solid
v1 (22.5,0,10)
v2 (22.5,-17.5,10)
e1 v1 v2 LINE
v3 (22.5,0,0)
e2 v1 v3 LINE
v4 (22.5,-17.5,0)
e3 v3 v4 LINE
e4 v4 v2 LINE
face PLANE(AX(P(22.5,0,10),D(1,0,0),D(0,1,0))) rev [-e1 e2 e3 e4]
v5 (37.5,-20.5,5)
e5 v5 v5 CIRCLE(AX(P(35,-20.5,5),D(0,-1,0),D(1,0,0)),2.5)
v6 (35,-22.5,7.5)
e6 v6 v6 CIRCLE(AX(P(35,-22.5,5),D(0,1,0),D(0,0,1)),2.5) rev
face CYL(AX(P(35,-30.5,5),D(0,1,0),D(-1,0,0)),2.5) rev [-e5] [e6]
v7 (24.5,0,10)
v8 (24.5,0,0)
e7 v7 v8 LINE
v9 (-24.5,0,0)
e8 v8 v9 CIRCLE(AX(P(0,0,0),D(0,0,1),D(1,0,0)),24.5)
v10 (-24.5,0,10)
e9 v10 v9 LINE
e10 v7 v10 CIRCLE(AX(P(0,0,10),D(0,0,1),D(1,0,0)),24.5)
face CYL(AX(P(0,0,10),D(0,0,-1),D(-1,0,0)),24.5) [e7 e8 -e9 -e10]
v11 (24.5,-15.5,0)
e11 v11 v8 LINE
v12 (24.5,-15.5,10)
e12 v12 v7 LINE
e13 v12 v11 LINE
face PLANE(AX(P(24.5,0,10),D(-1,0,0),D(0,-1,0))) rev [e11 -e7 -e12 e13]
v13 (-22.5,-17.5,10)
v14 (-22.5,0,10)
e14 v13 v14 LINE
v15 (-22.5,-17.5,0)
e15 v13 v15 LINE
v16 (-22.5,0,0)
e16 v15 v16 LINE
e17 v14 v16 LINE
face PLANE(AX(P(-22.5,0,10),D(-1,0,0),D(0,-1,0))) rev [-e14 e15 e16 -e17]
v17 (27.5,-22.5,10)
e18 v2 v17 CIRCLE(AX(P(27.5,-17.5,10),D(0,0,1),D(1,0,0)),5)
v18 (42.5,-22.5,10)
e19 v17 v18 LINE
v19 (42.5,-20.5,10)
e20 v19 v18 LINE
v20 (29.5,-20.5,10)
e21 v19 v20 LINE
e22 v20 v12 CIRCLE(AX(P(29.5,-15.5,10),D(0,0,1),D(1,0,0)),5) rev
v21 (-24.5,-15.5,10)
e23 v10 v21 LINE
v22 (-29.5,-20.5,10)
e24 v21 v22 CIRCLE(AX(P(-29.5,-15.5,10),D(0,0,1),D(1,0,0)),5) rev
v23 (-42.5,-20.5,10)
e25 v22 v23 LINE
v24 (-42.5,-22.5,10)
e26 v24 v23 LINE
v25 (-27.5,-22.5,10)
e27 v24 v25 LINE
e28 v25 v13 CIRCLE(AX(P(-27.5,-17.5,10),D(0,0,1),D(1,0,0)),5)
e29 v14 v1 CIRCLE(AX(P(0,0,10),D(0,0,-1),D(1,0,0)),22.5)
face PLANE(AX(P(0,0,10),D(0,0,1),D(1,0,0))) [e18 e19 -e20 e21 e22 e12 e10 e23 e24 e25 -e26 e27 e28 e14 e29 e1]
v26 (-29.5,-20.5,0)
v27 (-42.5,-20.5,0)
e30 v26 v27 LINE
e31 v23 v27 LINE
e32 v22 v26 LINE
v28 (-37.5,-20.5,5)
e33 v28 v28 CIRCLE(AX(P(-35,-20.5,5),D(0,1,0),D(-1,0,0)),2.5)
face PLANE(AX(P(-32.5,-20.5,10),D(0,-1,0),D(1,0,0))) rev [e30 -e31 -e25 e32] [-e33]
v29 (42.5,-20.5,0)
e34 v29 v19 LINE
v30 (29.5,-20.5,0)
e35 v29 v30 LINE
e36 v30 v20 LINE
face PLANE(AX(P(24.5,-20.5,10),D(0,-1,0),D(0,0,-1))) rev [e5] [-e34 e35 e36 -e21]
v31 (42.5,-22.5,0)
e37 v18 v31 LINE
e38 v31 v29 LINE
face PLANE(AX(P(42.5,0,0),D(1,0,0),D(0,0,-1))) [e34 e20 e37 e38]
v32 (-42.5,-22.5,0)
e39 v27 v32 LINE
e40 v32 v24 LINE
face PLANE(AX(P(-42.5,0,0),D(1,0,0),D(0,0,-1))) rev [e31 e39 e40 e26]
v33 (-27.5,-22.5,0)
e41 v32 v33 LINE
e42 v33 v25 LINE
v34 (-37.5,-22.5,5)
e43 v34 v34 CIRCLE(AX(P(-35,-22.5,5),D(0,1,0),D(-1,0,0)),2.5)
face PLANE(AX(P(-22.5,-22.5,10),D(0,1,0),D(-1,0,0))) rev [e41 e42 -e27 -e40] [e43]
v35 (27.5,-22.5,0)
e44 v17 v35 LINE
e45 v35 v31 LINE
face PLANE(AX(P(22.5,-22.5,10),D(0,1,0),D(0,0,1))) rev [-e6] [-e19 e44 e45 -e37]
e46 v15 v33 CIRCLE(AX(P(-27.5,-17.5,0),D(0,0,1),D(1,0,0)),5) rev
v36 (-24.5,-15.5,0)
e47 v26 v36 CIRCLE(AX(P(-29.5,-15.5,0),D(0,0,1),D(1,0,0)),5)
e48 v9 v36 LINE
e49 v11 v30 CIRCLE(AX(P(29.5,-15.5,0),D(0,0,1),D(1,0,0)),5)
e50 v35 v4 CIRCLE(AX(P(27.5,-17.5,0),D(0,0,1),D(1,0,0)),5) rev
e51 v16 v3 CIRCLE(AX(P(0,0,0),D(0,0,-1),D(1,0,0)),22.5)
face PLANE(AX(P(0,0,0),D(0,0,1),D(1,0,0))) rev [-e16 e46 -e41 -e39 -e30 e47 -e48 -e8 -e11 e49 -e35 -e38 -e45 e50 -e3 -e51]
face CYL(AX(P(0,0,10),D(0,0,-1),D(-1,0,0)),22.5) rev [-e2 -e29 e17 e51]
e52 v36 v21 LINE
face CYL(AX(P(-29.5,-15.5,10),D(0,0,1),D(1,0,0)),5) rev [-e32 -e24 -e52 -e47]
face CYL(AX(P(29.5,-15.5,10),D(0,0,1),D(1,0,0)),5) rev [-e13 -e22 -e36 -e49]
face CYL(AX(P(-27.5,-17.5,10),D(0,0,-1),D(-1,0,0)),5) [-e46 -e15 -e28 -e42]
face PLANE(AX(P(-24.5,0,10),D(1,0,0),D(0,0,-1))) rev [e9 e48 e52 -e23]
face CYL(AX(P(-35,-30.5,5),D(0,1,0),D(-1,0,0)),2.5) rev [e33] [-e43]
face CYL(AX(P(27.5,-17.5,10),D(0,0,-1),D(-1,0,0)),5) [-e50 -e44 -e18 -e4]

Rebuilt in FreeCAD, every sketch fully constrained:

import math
import FreeCAD as App
import Part
import Sketcher
from FreeCAD import Vector
Q = App.Units.Quantity


def edges_at(feature, points):
    """Names of the edges that pass closest to the given points."""
    edges = feature.Shape.Edges
    near = lambda p: min(range(len(edges)), key=lambda i: edges[i].distToShape(Part.Vertex(*p))[0])
    return sorted({f"Edge{near(p) + 1}" for p in points})

doc = App.newDocument("Part")
params = doc.addObject("Spreadsheet::Sheet", "Params")
for row, (alias, value) in enumerate([
    ("sketch1_radius", "24.5 mm"),
    ("sketch1_radius2", "22.5 mm"),
    ("sketch1_width", "8 mm"),
    ("sketch1_height", "2 mm"),
    ("sketch1_height2", "20.5 mm"),
    ("pad1_length", "10 mm"),
    ("fillet_radius", "5 mm"),
    ("fillet2_radius", "5 mm"),
    ("fillet3_radius", "5 mm"),
    ("sketch2_width", "2 mm"),
    ("sketch2_height", "10 mm"),
    ("pad2_length", "10 mm"),
    ("sketch3_width", "2 mm"),
    ("sketch3_height", "10 mm"),
    ("pad3_length", "10 mm"),
    ("sketch4_diameter", "5 mm"),
    ("pocket1_length", "10 mm"),
], start=1):
    params.set(f"A{row}", alias)
    params.set(f"B{row}", "=" + value)
    params.setAlias(f"B{row}", alias)

body = doc.addObject("PartDesign::Body", "Body")

# Sketch on XY plane
sketch1 = doc.addObject("Sketcher::SketchObject", "Sketch")
body.addObject(sketch1)
sketch1.AttachmentSupport = (doc.XY_Plane, [""])
sketch1.MapMode = "FlatFace"
sketch1.addGeometry([
    Part.LineSegment(Vector(32.5, -20.5, 0), Vector(24.5, -20.5, 0)),  # 0
    Part.LineSegment(Vector(24.5, -20.5, 0), Vector(24.5, 0, 0)),  # 1
    Part.ArcOfCircle(Part.Circle(Vector(0, 0, 0), Vector(0, 0, 1), 24.5), math.radians(0), math.radians(180)),  # 2
    Part.LineSegment(Vector(-24.5, 0, 0), Vector(-24.5, -20.5, 0)),  # 3
    Part.LineSegment(Vector(-24.5, -20.5, 0), Vector(-32.5, -20.5, 0)),  # 4
    Part.LineSegment(Vector(-32.5, -20.5, 0), Vector(-32.5, -22.5, 0)),  # 5
    Part.LineSegment(Vector(-32.5, -22.5, 0), Vector(-22.5, -22.5, 0)),  # 6
    Part.LineSegment(Vector(-22.5, -22.5, 0), Vector(-22.5, 0, 0)),  # 7
    Part.ArcOfCircle(Part.Circle(Vector(0, 0, 0), Vector(0, 0, 1), 22.5), math.radians(0), math.radians(180)),  # 8
    Part.LineSegment(Vector(22.5, 0, 0), Vector(22.5, -22.5, 0)),  # 9
    Part.LineSegment(Vector(22.5, -22.5, 0), Vector(32.5, -22.5, 0)),  # 10
    Part.LineSegment(Vector(32.5, -22.5, 0), Vector(32.5, -20.5, 0)),  # 11
], False)
sketch1.addConstraint([
    Sketcher.Constraint("Coincident", 0, 2, 1, 1),
    Sketcher.Constraint("Tangent", 1, 2, 2, 1),
    Sketcher.Constraint("Tangent", 2, 2, 3, 1),
    Sketcher.Constraint("Coincident", 3, 2, 4, 1),
    Sketcher.Constraint("Coincident", 4, 2, 5, 1),
    Sketcher.Constraint("Coincident", 5, 2, 6, 1),
    Sketcher.Constraint("Coincident", 6, 2, 7, 1),
    Sketcher.Constraint("Tangent", 7, 2, 8, 2),
    Sketcher.Constraint("Tangent", 8, 1, 9, 1),
    Sketcher.Constraint("Coincident", 9, 2, 10, 1),
    Sketcher.Constraint("Coincident", 10, 2, 11, 1),
    Sketcher.Constraint("Coincident", 11, 2, 0, 1),
    Sketcher.Constraint("Horizontal", 0),
    Sketcher.Constraint("Vertical", 1),
    Sketcher.Constraint("Vertical", 3),
    Sketcher.Constraint("Horizontal", 4),
    Sketcher.Constraint("Vertical", 5),
    Sketcher.Constraint("Horizontal", 6),
    Sketcher.Constraint("Vertical", 7),
    Sketcher.Constraint("Vertical", 9),
    Sketcher.Constraint("Horizontal", 10),
    Sketcher.Constraint("Vertical", 11),
    Sketcher.Constraint("Coincident", 2, 3, -1, 1),
    Sketcher.Constraint("Coincident", 8, 3, -1, 1),
    Sketcher.Constraint("Symmetric", 5, 2, 10, 2, -2),
    Sketcher.Constraint("Horizontal", 0, 2, 3, 2),
    Sketcher.Constraint("Radius", 2, Q("24.5 mm")),
    Sketcher.Constraint("Radius", 8, Q("22.5 mm")),
    Sketcher.Constraint("DistanceX", 0, 2, 0, 1, Q("8 mm")),
    Sketcher.Constraint("DistanceY", 5, 2, 5, 1, Q("2 mm")),
    Sketcher.Constraint("DistanceY", 1, 1, 1, 2, Q("20.5 mm")),
])
sketch1.setExpression("Constraints[26]", "Params.sketch1_radius")
sketch1.setExpression("Constraints[27]", "Params.sketch1_radius2")
sketch1.setExpression("Constraints[28]", "Params.sketch1_width")
sketch1.setExpression("Constraints[29]", "Params.sketch1_height")
sketch1.setExpression("Constraints[30]", "Params.sketch1_height2")
pad1 = doc.addObject("PartDesign::Pad", "Pad")
body.addObject(pad1)
pad1.Profile = sketch1
pad1.setExpression("Length", "Params.pad1_length")
doc.recompute()

fillet = doc.addObject("PartDesign::Fillet", "Fillet")
body.addObject(fillet)
fillet.Base = (pad1, edges_at(pad1, [(-22.5, -22.5, 5)]))
fillet.setExpression("Radius", "Params.fillet_radius")
doc.recompute()

fillet2 = doc.addObject("PartDesign::Fillet", "Fillet001")
body.addObject(fillet2)
fillet2.Base = (fillet, edges_at(fillet, [(-24.5, -20.5, 5)]))
fillet2.setExpression("Radius", "Params.fillet2_radius")
doc.recompute()

fillet3 = doc.addObject("PartDesign::Fillet", "Fillet002")
body.addObject(fillet3)
fillet3.Base = (fillet2, edges_at(fillet2, [(24.5, -20.5, 5), (22.5, -22.5, 5)]))
fillet3.setExpression("Radius", "Params.fillet3_radius")

# Sketch on YZ plane
sketch2 = doc.addObject("Sketcher::SketchObject", "Sketch001")
body.addObject(sketch2)
sketch2.AttachmentSupport = (doc.YZ_Plane, [""])
sketch2.MapMode = "FlatFace"
sketch2.AttachmentOffset = App.Placement(Vector(0, 0, 32.5), App.Rotation())
sketch2.addGeometry([
    Part.LineSegment(Vector(-20.5, 10, 0), Vector(-22.5, 10, 0)),
    Part.LineSegment(Vector(-22.5, 10, 0), Vector(-22.5, 0, 0)),
    Part.LineSegment(Vector(-22.5, 0, 0), Vector(-20.5, 0, 0)),
    Part.LineSegment(Vector(-20.5, 0, 0), Vector(-20.5, 10, 0)),
], False)
sketch2.addConstraint([
    Sketcher.Constraint("Coincident", 0, 2, 1, 1),
    Sketcher.Constraint("Coincident", 1, 2, 2, 1),
    Sketcher.Constraint("Coincident", 2, 2, 3, 1),
    Sketcher.Constraint("Coincident", 3, 2, 0, 1),
    Sketcher.Constraint("Horizontal", 0),
    Sketcher.Constraint("Vertical", 1),
    Sketcher.Constraint("Horizontal", 2),
    Sketcher.Constraint("Vertical", 3),
    Sketcher.Constraint("PointOnObject", 1, 2, -1),
    Sketcher.Constraint("DistanceX", 0, 2, 0, 1, Q("2 mm")),
    Sketcher.Constraint("DistanceY", 1, 2, 1, 1, Q("10 mm")),
    Sketcher.Constraint("DistanceX", 0, 2, -1, 1, Q("22.5 mm")),
])
sketch2.setExpression("Constraints[9]", "Params.sketch2_width")
sketch2.setExpression("Constraints[10]", "Params.sketch2_height")
pad2 = doc.addObject("PartDesign::Pad", "Pad001")
body.addObject(pad2)
pad2.Profile = sketch2
pad2.setExpression("Length", "Params.pad2_length")

# Sketch on YZ plane
sketch3 = doc.addObject("Sketcher::SketchObject", "Sketch002")
body.addObject(sketch3)
sketch3.AttachmentSupport = (doc.YZ_Plane, [""])
sketch3.MapMode = "FlatFace"
sketch3.AttachmentOffset = App.Placement(Vector(0, 0, -32.5), App.Rotation())
sketch3.addGeometry([
    Part.LineSegment(Vector(-20.5, 0, 0), Vector(-22.5, 0, 0)),
    Part.LineSegment(Vector(-22.5, 0, 0), Vector(-22.5, 10, 0)),
    Part.LineSegment(Vector(-22.5, 10, 0), Vector(-20.5, 10, 0)),
    Part.LineSegment(Vector(-20.5, 10, 0), Vector(-20.5, 0, 0)),
], False)
sketch3.addConstraint([
    Sketcher.Constraint("Coincident", 0, 2, 1, 1),
    Sketcher.Constraint("Coincident", 1, 2, 2, 1),
    Sketcher.Constraint("Coincident", 2, 2, 3, 1),
    Sketcher.Constraint("Coincident", 3, 2, 0, 1),
    Sketcher.Constraint("Horizontal", 0),
    Sketcher.Constraint("Vertical", 1),
    Sketcher.Constraint("Horizontal", 2),
    Sketcher.Constraint("Vertical", 3),
    Sketcher.Constraint("PointOnObject", 0, 2, -1),
    Sketcher.Constraint("DistanceX", 0, 2, 0, 1, Q("2 mm")),
    Sketcher.Constraint("DistanceY", 1, 1, 1, 2, Q("10 mm")),
    Sketcher.Constraint("DistanceX", 0, 2, -1, 1, Q("22.5 mm")),
])
sketch3.setExpression("Constraints[9]", "Params.sketch3_width")
sketch3.setExpression("Constraints[10]", "Params.sketch3_height")
pad3 = doc.addObject("PartDesign::Pad", "Pad002")
body.addObject(pad3)
pad3.Profile = sketch3
pad3.setExpression("Length", "Params.pad3_length")
pad3.Reversed = True

# Sketch on XZ plane
sketch4 = doc.addObject("Sketcher::SketchObject", "Sketch003")
body.addObject(sketch4)
sketch4.AttachmentSupport = (doc.XZ_Plane, [""])
sketch4.MapMode = "FlatFace"
sketch4.AttachmentOffset = App.Placement(Vector(0, 0, 20.5), App.Rotation())
sketch4.addGeometry(Part.Circle(Vector(-35, 5, 0), Vector(0, 0, 1), 2.5), False)
sketch4.addConstraint([
    Sketcher.Constraint("Diameter", 0, Q("5 mm")),
    Sketcher.Constraint("DistanceX", 0, 3, -1, 1, Q("35 mm")),
    Sketcher.Constraint("DistanceY", -1, 1, 0, 3, Q("5 mm")),
])
sketch4.setExpression("Constraints[0]", "Params.sketch4_diameter")
pocket1 = doc.addObject("PartDesign::Pocket", "Pocket")
body.addObject(pocket1)
pocket1.Profile = sketch4
pocket1.setExpression("Length", "Params.pocket1_length")
pocket1.Reversed = True
doc.recompute()

mirrored = doc.addObject("PartDesign::Mirrored", "Mirrored")
body.addObject(mirrored)
mirrored.Originals = [pocket1]
mirrored.MirrorPlane = (doc.YZ_Plane, [""])
body.Tip = mirrored

doc.recompute()
